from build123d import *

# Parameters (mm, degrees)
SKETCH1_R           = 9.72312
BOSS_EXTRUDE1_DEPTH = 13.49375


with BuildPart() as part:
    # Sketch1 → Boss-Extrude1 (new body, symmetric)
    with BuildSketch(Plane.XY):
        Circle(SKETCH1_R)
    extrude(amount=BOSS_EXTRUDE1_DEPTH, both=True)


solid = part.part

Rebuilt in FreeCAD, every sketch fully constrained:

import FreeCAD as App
import Part
import Sketcher
Q = App.Units.Quantity

doc = App.newDocument("Part")
params = doc.addObject("Spreadsheet::Sheet", "Params")
for row, (alias, value) in enumerate([
    ("pad1_length", "1.0625 in"),
], start=1):
    params.set(f"A{row}", alias)
    params.set(f"B{row}", "=" + value)
    params.setAlias(f"B{row}", alias)

body = doc.addObject("PartDesign::Body", "Body")

# Sketch on XY plane
sketch1 = doc.addObject("Sketcher::SketchObject", "Sketch")
body.addObject(sketch1)
sketch1.AttachmentSupport = (doc.XY_Plane, [""])
sketch1.MapMode = "FlatFace"
sketch1.addGeometry(Part.Circle(App.Vector(0, 0, 0), App.Vector(0, 0, 1), 10), False)
sketch1.addConstraint([
    Sketcher.Constraint("Coincident", 0, 3, -1, 1),
    Sketcher.Constraint("Diameter", 0, Q("0.7656 in")),
])
pad1 = doc.addObject("PartDesign::Pad", "Pad")
body.addObject(pad1)
pad1.Profile = sketch1
pad1.setExpression("Length", "Params.pad1_length")
pad1.Midplane = True

doc.recompute()
